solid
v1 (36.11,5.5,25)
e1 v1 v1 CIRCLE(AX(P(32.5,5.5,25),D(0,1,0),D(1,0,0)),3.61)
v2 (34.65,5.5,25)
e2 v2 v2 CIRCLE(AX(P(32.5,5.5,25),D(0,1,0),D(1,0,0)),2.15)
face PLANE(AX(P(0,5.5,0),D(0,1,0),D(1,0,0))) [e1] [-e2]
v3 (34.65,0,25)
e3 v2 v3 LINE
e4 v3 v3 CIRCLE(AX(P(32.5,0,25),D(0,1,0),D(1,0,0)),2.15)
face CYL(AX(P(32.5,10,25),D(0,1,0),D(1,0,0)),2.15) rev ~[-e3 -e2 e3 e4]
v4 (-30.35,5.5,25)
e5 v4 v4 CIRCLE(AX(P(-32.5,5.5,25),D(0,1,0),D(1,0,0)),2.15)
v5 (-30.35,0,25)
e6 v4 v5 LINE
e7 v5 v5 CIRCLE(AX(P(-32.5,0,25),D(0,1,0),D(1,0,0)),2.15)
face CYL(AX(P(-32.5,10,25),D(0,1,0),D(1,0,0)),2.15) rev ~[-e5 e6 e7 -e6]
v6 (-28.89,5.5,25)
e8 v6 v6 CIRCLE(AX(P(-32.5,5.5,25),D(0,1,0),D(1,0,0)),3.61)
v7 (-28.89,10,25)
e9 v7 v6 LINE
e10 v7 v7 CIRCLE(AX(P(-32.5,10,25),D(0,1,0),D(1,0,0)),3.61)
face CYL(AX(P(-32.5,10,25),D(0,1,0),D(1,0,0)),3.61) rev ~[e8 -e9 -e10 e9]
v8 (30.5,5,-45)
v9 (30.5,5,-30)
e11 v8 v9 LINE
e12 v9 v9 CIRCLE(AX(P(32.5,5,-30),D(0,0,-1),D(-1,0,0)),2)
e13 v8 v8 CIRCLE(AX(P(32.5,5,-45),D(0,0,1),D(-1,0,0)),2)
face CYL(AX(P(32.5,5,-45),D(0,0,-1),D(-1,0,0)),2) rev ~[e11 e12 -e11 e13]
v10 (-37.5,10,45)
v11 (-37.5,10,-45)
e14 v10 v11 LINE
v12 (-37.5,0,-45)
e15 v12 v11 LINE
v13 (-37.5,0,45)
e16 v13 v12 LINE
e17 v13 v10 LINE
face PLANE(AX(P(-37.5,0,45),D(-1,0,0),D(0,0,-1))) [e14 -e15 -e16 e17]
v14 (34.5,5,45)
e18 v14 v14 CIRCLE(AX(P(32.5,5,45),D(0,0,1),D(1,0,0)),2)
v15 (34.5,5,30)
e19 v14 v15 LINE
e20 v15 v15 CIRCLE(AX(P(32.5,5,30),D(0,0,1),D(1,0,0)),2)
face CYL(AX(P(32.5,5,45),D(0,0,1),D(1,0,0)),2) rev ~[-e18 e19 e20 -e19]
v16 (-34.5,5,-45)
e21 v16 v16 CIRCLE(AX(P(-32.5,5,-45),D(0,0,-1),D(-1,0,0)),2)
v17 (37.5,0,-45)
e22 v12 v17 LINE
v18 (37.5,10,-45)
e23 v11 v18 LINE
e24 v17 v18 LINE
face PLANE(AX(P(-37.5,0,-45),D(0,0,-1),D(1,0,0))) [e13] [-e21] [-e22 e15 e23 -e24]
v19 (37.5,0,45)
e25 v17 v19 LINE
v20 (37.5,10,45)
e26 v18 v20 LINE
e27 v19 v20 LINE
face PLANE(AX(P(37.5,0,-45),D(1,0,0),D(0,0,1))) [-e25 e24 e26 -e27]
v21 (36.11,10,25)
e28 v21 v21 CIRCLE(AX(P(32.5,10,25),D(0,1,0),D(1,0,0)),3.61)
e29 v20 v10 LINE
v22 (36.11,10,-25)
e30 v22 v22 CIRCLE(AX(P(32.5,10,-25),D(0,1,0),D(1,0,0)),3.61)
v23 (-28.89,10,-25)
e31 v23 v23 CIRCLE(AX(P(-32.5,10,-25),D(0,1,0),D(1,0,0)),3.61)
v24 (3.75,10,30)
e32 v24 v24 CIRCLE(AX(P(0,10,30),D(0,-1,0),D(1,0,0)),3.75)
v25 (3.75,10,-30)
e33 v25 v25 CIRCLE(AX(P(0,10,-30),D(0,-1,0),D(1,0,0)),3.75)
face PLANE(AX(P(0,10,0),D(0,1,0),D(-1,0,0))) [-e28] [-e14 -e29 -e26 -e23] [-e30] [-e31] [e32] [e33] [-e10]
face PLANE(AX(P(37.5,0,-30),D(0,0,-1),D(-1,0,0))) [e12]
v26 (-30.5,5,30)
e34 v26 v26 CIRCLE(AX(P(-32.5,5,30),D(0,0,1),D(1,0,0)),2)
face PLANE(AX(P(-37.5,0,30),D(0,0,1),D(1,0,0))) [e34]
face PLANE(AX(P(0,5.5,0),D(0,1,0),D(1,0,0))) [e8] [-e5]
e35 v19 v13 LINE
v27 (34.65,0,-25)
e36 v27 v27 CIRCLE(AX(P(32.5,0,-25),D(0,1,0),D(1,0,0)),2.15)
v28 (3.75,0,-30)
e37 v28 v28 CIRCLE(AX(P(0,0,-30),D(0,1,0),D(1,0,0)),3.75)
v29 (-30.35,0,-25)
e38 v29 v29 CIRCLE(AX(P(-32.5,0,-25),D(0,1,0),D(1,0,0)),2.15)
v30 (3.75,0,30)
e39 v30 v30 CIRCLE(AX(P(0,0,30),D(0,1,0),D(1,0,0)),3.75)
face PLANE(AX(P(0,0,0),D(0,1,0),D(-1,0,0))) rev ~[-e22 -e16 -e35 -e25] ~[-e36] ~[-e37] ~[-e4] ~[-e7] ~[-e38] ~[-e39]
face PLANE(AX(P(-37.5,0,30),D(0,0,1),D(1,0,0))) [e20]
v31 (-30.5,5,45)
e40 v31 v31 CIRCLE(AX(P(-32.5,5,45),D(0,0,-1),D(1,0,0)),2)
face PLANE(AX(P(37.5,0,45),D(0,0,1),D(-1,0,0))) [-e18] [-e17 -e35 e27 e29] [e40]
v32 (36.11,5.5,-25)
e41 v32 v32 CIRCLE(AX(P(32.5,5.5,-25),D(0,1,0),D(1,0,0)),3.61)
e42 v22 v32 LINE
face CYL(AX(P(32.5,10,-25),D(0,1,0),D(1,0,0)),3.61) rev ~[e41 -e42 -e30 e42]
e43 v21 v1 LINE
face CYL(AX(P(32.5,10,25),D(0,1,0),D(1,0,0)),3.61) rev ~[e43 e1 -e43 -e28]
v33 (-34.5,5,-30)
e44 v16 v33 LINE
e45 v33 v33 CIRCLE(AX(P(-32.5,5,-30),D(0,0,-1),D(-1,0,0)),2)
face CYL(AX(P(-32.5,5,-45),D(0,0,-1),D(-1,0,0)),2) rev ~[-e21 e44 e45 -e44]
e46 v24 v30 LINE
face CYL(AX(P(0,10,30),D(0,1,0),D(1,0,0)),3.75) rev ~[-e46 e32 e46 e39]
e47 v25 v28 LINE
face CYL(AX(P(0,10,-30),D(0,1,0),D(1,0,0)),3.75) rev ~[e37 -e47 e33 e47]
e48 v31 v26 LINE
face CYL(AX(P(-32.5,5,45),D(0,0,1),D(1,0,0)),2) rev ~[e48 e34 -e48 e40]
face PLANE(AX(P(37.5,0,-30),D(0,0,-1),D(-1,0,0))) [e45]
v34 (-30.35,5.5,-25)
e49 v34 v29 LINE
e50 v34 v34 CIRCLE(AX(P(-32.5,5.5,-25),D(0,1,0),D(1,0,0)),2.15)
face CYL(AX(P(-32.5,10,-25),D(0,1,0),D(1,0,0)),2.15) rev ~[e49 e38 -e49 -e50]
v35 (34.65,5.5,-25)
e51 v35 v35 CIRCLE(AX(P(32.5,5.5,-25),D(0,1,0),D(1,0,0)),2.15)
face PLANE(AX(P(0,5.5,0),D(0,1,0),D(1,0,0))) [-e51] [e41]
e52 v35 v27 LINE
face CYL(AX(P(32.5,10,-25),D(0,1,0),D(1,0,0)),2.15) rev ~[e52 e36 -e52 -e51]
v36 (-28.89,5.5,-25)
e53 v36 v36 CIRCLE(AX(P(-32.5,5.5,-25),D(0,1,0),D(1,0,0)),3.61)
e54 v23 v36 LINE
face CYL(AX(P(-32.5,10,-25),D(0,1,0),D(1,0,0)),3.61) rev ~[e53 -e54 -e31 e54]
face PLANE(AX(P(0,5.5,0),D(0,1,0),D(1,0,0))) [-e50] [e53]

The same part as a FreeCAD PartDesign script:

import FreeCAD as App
import Part
import Sketcher

doc = App.newDocument("Part")
body = doc.addObject("PartDesign::Body", "Body")

sketch1 = body.newObject("Sketcher::SketchObject", "Sketch")
sketch1.AttachmentSupport = (doc.getObject("XZ_Plane"), [""])
sketch1.MapMode = "FlatFace"
sketch1.addGeometry(Part.LineSegment(App.Vector(-38, 45, 0), App.Vector(38, 45, 0)), False)
sketch1.addGeometry(Part.LineSegment(App.Vector(38, 45, 0), App.Vector(38, -45, 0)), False)
sketch1.addGeometry(Part.LineSegment(App.Vector(38, -45, 0), App.Vector(-38, -45, 0)), False)
sketch1.addGeometry(Part.LineSegment(App.Vector(-38, -45, 0), App.Vector(-38, 45, 0)), False)
sketch1.addConstraint(Sketcher.Constraint("Coincident", 0, 2, 1, 1))
sketch1.addConstraint(Sketcher.Constraint("Coincident", 1, 2, 2, 1))
sketch1.addConstraint(Sketcher.Constraint("Coincident", 2, 2, 3, 1))
sketch1.addConstraint(Sketcher.Constraint("Coincident", 3, 2, 0, 1))
sketch1.addConstraint(Sketcher.Constraint("Horizontal", 0))
sketch1.addConstraint(Sketcher.Constraint("Vertical", 1))
sketch1.addConstraint(Sketcher.Constraint("Horizontal", 2))
sketch1.addConstraint(Sketcher.Constraint("Vertical", 3))
sketch1.addConstraint(Sketcher.Constraint("Symmetric", 0, 2, 2, 2, -1, 1))
sketch1.addConstraint(Sketcher.Constraint("DistanceX", 0, 1, 0, 2, 75.0))
sketch1.addConstraint(Sketcher.Constraint("DistanceY", 1, 2, 1, 1, 90.0))
pad1 = body.newObject("PartDesign::Pad", "Pad")
pad1.Profile = sketch1
pad1.Length = 10
pad1.Reversed = True

sketch2 = body.newObject("Sketcher::SketchObject", "Sketch001")
sketch2.AttachmentSupport = (doc.getObject("XZ_Plane"), [""])
sketch2.MapMode = "FlatFace"
sketch2.AttachmentOffset = App.Placement(App.Vector(0, 0, -10), App.Rotation())
sketch2.addGeometry(Part.Circle(App.Vector(-32.5, -25, 0), App.Vector(0, 0, 1), 2.1), False)
sketch2.addGeometry(Part.Circle(App.Vector(-32.5, 25, 0), App.Vector(0, 0, 1), 2.1), False)
sketch2.addGeometry(Part.Circle(App.Vector(32.5, 25, 0), App.Vector(0, 0, 1), 2.1), False)
sketch2.addGeometry(Part.Circle(App.Vector(32.5, -25, 0), App.Vector(0, 0, 1), 2.1), False)
sketch2.addConstraint(Sketcher.Constraint("Equal", 0, 1))
sketch2.addConstraint(Sketcher.Constraint("Equal", 1, 2))
sketch2.addConstraint(Sketcher.Constraint("Equal", 2, 3))
sketch2.addConstraint(Sketcher.Constraint("Symmetric", 0, 3, 2, 3, -1, 1))
sketch2.addConstraint(Sketcher.Constraint("Symmetric", 1, 3, 3, 3, -1, 1))
sketch2.addConstraint(Sketcher.Constraint("Symmetric", 1, 3, 2, 3, -2))
sketch2.addConstraint(Sketcher.Constraint("Diameter", 0, 4.3))
sketch2.addConstraint(Sketcher.Constraint("DistanceY", 0, 3, -1, 1, 25.0))
sketch2.addConstraint(Sketcher.Constraint("DistanceX", 1, 3, 2, 3, 65.0))
pocket1 = body.newObject("PartDesign::Pocket", "Pocket")
pocket1.Profile = sketch2
pocket1.Length = 10
pocket1.Reversed = True

sketch3 = body.newObject("Sketcher::SketchObject", "Sketch002")
sketch3.AttachmentSupport = (doc.getObject("XZ_Plane"), [""])
sketch3.MapMode = "FlatFace"
sketch3.AttachmentOffset = App.Placement(App.Vector(0, 0, -10), App.Rotation())
sketch3.addGeometry(Part.Circle(App.Vector(32.5, 25, 0), App.Vector(0, 0, 1), 3.6), False)
sketch3.addGeometry(Part.Circle(App.Vector(32.5, 25, 0), App.Vector(0, 0, 1), 2.1), False)
sketch3.addGeometry(Part.Circle(App.Vector(32.5, -25, 0), App.Vector(0, 0, 1), 3.6), False)
sketch3.addGeometry(Part.Circle(App.Vector(32.5, -25, 0), App.Vector(0, 0, 1), 2.1), False)
sketch3.addGeometry(Part.Circle(App.Vector(-32.5, 25, 0), App.Vector(0, 0, 1), 3.6), False)
sketch3.addGeometry(Part.Circle(App.Vector(-32.5, 25, 0), App.Vector(0, 0, 1), 2.1), False)
sketch3.addGeometry(Part.Circle(App.Vector(-32.5, -25, 0), App.Vector(0, 0, 1), 3.6), False)
sketch3.addGeometry(Part.Circle(App.Vector(-32.5, -25, 0), App.Vector(0, 0, 1), 2.1), False)
sketch3.addConstraint(Sketcher.Constraint("Coincident", 1, 3, 0, 3))
sketch3.addConstraint(Sketcher.Constraint("Coincident", 3, 3, 2, 3))
sketch3.addConstraint(Sketcher.Constraint("Coincident", 5, 3, 4, 3))
sketch3.addConstraint(Sketcher.Constraint("Coincident", 7, 3, 6, 3))
sketch3.addConstraint(Sketcher.Constraint("Equal", 0, 2))
sketch3.addConstraint(Sketcher.Constraint("Equal", 1, 3))
sketch3.addConstraint(Sketcher.Constraint("Equal", 2, 4))
sketch3.addConstraint(Sketcher.Constraint("Equal", 3, 5))
sketch3.addConstraint(Sketcher.Constraint("Equal", 4, 6))
sketch3.addConstraint(Sketcher.Constraint("Equal", 5, 7))
sketch3.addConstraint(Sketcher.Constraint("Symmetric", 2, 3, 4, 3, -1, 1))
sketch3.addConstraint(Sketcher.Constraint("Symmetric", 0, 3, 6, 3, -1, 1))
sketch3.addConstraint(Sketcher.Constraint("Symmetric", 0, 3, 4, 3, -2))
sketch3.addConstraint(Sketcher.Constraint("Diameter", 0, 7.22))
sketch3.addConstraint(Sketcher.Constraint("Diameter", 1, 4.3))
sketch3.addConstraint(Sketcher.Constraint("DistanceY", -1, 1, 0, 3, 25.0))
sketch3.addConstraint(Sketcher.Constraint("DistanceX", 4, 3, 0, 3, 65.0))
pocket2 = body.newObject("PartDesign::Pocket", "Pocket001")
pocket2.Profile = sketch3
pocket2.Length = 4.5
pocket2.Reversed = True

sketch4 = body.newObject("Sketcher::SketchObject", "Sketch003")
sketch4.AttachmentSupport = (doc.getObject("XZ_Plane"), [""])
sketch4.MapMode = "FlatFace"
sketch4.AttachmentOffset = App.Placement(App.Vector(0, 0, -10), App.Rotation())
sketch4.addGeometry(Part.Circle(App.Vector(0, 30, 0), App.Vector(0, 0, 1), 3.8), False)
sketch4.addGeometry(Part.Circle(App.Vector(0, -30, 0), App.Vector(0, 0, 1), 3.8), False)
sketch4.addConstraint(Sketcher.Constraint("Equal", 0, 1))
sketch4.addConstraint(Sketcher.Constraint("Symmetric", 0, 3, 1, 3, -1, 1))
sketch4.addConstraint(Sketcher.Constraint("PointOnObject", 0, 3, -2))
sketch4.addConstraint(Sketcher.Constraint("Diameter", 0, 7.5))
sketch4.addConstraint(Sketcher.Constraint("DistanceY", -1, 1, 0, 3, 30.0))
pocket3 = body.newObject("PartDesign::Pocket", "Pocket002")
pocket3.Profile = sketch4
pocket3.Length = 10
pocket3.Reversed = True

sketch5 = body.newObject("Sketcher::SketchObject", "Sketch004")
sketch5.AttachmentSupport = (doc.getObject("XY_Plane"), [""])
sketch5.MapMode = "FlatFace"
sketch5.AttachmentOffset = App.Placement(App.Vector(0, 0, -45), App.Rotation())
sketch5.addGeometry(Part.Circle(App.Vector(32.5, 5, 0), App.Vector(0, 0, 1), 2), False)
sketch5.addGeometry(Part.Circle(App.Vector(-32.5, 5, 0), App.Vector(0, 0, 1), 2), False)
sketch5.addConstraint(Sketcher.Constraint("Equal", 0, 1))
sketch5.addConstraint(Sketcher.Constraint("Symmetric", 0, 3, 1, 3, -2))
sketch5.addConstraint(Sketcher.Constraint("Diameter", 0, 4.0))
sketch5.addConstraint(Sketcher.Constraint("DistanceY", -1, 1, 0, 3, 5.0))
sketch5.addConstraint(Sketcher.Constraint("DistanceX", 1, 3, 0, 3, 65.0))
pocket4 = body.newObject("PartDesign::Pocket", "Pocket003")
pocket4.Profile = sketch5
pocket4.Length = 15
pocket4.Reversed = True

sketch6 = body.newObject("Sketcher::SketchObject", "Sketch005")
sketch6.AttachmentSupport = (doc.getObject("XY_Plane"), [""])
sketch6.MapMode = "FlatFace"
sketch6.AttachmentOffset = App.Placement(App.Vector(0, 0, 45), App.Rotation())
sketch6.addGeometry(Part.Circle(App.Vector(-32.5, 5, 0), App.Vector(0, 0, 1), 2), False)
sketch6.addGeometry(Part.Circle(App.Vector(32.5, 5, 0), App.Vector(0, 0, 1), 2), False)
sketch6.addConstraint(Sketcher.Constraint("Equal", 0, 1))
sketch6.addConstraint(Sketcher.Constraint("Symmetric", 0, 3, 1, 3, -2))
sketch6.addConstraint(Sketcher.Constraint("Diameter", 0, 4.0))
sketch6.addConstraint(Sketcher.Constraint("DistanceY", -1, 1, 0, 3, 5.0))
sketch6.addConstraint(Sketcher.Constraint("DistanceX", 0, 3, 1, 3, 65.0))
pocket5 = body.newObject("PartDesign::Pocket", "Pocket004")
pocket5.Profile = sketch6
pocket5.Length = 15

doc.recompute()
